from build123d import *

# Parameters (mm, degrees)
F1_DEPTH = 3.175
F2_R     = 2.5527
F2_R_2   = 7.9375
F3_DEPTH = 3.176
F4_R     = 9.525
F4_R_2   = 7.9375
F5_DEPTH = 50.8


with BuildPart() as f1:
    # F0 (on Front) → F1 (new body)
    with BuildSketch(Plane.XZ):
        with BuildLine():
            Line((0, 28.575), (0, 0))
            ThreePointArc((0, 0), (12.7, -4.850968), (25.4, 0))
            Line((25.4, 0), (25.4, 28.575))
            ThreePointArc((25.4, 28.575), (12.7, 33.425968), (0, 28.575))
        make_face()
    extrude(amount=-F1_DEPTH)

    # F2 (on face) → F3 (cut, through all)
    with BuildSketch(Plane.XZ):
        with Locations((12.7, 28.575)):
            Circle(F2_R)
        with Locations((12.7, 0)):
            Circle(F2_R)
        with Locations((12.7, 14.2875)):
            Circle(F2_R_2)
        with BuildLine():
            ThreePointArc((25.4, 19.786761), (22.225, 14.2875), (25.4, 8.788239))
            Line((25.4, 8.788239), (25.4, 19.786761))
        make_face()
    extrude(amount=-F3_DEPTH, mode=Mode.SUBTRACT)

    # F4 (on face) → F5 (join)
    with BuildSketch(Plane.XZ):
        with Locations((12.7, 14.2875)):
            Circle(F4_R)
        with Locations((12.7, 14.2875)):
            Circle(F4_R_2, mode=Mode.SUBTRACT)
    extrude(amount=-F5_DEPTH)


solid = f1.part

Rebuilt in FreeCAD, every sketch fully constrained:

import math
import FreeCAD as App
import Part
import Sketcher
Q = App.Units.Quantity

doc = App.newDocument("Part")
params = doc.addObject("Spreadsheet::Sheet", "Params")
for row, (alias, value) in enumerate([
    ("sketch1_radius", "0.75 in"),
    ("sketch1_height", "1.125 in"),
    ("pad1_length", "0.125 in"),
    ("sketch2_radius", "0.25 in"),
    ("sketch2_diameter", "0.201 in"),
    ("sketch2_diameter2", "0.625 in"),
    ("sketch3_diameter", "0.75 in"),
    ("sketch3_diameter2", "0.625 in"),
    ("pad2_length", "2 in"),
], start=1):
    params.set(f"A{row}", alias)
    params.set(f"B{row}", "=" + value)
    params.setAlias(f"B{row}", alias)

body = doc.addObject("PartDesign::Body", "Body")

sketch1 = body.newObject("Sketcher::SketchObject", "Sketch")
sketch1.AttachmentSupport = (doc.getObject("XZ_Plane"), [""])
sketch1.MapMode = "FlatFace"
sketch1.addGeometry([
    Part.LineSegment(App.Vector(0, 29, 0), App.Vector(0, 0, 0)),
    Part.ArcOfCircle(Part.Circle(App.Vector(13, 14, 0), App.Vector(0, 0, 1), 19), math.radians(-132), math.radians(-48)),
    Part.LineSegment(App.Vector(25, 0, 0), App.Vector(25, 29, 0)),
    Part.ArcOfCircle(Part.Circle(App.Vector(13, 14, 0), App.Vector(0, 0, 1), 19), math.radians(48), math.radians(132)),
], False)
sketch1.addConstraint([
    Sketcher.Constraint("Coincident", 0, 2, 1, 1),
    Sketcher.Constraint("Coincident", 1, 2, 2, 1),
    Sketcher.Constraint("Coincident", 2, 2, 3, 1),
    Sketcher.Constraint("Coincident", 3, 2, 0, 1),
    Sketcher.Constraint("Vertical", 0),
    Sketcher.Constraint("Vertical", 2),
    Sketcher.Constraint("Coincident", 0, 2, -1, 1),
    Sketcher.Constraint("Equal", 1, 3),
    Sketcher.Constraint("PointOnObject", 1, 2, -1),
    Sketcher.Constraint("Horizontal", 2, 2, 3, 2),
    Sketcher.Constraint("Radius", 1, Q("0.75 in")),
    Sketcher.Constraint("DistanceX", -1, 1, 1, 2, Q("1 in")),
    Sketcher.Constraint("DistanceY", 0, 2, 0, 1, Q("1.125 in")),
])
sketch1.setExpression("Constraints[10]", "Params.sketch1_radius")
sketch1.setExpression("Constraints[12]", "Params.sketch1_height")
pad1 = body.newObject("PartDesign::Pad", "Pad")
pad1.Profile = sketch1
pad1.setExpression("Length", "Params.pad1_length")
pad1.Reversed = True

sketch2 = body.newObject("Sketcher::SketchObject", "Sketch001")
sketch2.AttachmentSupport = (doc.getObject("XZ_Plane"), [""])
sketch2.MapMode = "FlatFace"
sketch2.addGeometry([
    Part.Circle(App.Vector(12.7, 28.6, 0), App.Vector(0, 0, 1), 2.6),
    Part.Circle(App.Vector(12.7, 0, 0), App.Vector(0, 0, 1), 2.6),
    Part.Circle(App.Vector(12.7, 14.3, 0), App.Vector(0, 0, 1), 7.9),
    Part.ArcOfCircle(Part.Circle(App.Vector(28.6, 14.3, 0), App.Vector(0, 0, 1), 6.3), math.radians(120), math.radians(240)),
    Part.LineSegment(App.Vector(25.4, 8.8, 0), App.Vector(25.4, 19.8, 0)),
], False)
sketch2.addConstraint([
    Sketcher.Constraint("Coincident", 3, 1, 4, 2),
    Sketcher.Constraint("Coincident", 4, 1, 3, 2),
    Sketcher.Constraint("Vertical", 4),
    Sketcher.Constraint("Equal", 0, 1),
    Sketcher.Constraint("PointOnObject", 1, 3, -1),
    Sketcher.Constraint("Horizontal", 2, 3, 3, 3),
    Sketcher.Constraint("Vertical", 0, 3, 1, 3),
    Sketcher.Constraint("Vertical", 1, 3, 2, 3),
    Sketcher.Constraint("Radius", 3, Q("0.25 in")),
    Sketcher.Constraint("Diameter", 0, Q("0.201 in")),
    Sketcher.Constraint("Diameter", 2, Q("0.625 in")),
    Sketcher.Constraint("DistanceX", -1, 1, 3, 1, Q("1 in")),
    Sketcher.Constraint("DistanceX", -1, 1, 0, 3, Q("0.5 in")),
    Sketcher.Constraint("DistanceY", -1, 1, 0, 3, Q("1.125 in")),
    Sketcher.Constraint("DistanceY", -1, 1, 2, 3, Q("0.5625 in")),
    Sketcher.Constraint("DistanceX", -1, 1, 3, 3, Q("1.125 in")),
])
sketch2.setExpression("Constraints[8]", "Params.sketch2_radius")
sketch2.setExpression("Constraints[9]", "Params.sketch2_diameter")
sketch2.setExpression("Constraints[10]", "Params.sketch2_diameter2")
pocket1 = body.newObject("PartDesign::Pocket", "Pocket")
pocket1.Profile = sketch2
pocket1.Type = "ThroughAll"

sketch3 = body.newObject("Sketcher::SketchObject", "Sketch002")
sketch3.AttachmentSupport = (doc.getObject("XZ_Plane"), [""])
sketch3.MapMode = "FlatFace"
sketch3.addGeometry([
    Part.Circle(App.Vector(13, 14, 0), App.Vector(0, 0, 1), 10),
    Part.Circle(App.Vector(13, 14, 0), App.Vector(0, 0, 1), 8),
], False)
sketch3.addConstraint([
    Sketcher.Constraint("Coincident", 1, 3, 0, 3),
    Sketcher.Constraint("Diameter", 0, Q("0.75 in")),
    Sketcher.Constraint("Diameter", 1, Q("0.625 in")),
    Sketcher.Constraint("DistanceX", -1, 1, 0, 3, Q("0.5 in")),
    Sketcher.Constraint("DistanceY", -1, 1, 0, 3, Q("0.5625 in")),
])
sketch3.setExpression("Constraints[1]", "Params.sketch3_diameter")
sketch3.setExpression("Constraints[2]", "Params.sketch3_diameter2")
pad2 = body.newObject("PartDesign::Pad", "Pad001")
pad2.Profile = sketch3
pad2.setExpression("Length", "Params.pad2_length")
pad2.Reversed = True

doc.recompute()
